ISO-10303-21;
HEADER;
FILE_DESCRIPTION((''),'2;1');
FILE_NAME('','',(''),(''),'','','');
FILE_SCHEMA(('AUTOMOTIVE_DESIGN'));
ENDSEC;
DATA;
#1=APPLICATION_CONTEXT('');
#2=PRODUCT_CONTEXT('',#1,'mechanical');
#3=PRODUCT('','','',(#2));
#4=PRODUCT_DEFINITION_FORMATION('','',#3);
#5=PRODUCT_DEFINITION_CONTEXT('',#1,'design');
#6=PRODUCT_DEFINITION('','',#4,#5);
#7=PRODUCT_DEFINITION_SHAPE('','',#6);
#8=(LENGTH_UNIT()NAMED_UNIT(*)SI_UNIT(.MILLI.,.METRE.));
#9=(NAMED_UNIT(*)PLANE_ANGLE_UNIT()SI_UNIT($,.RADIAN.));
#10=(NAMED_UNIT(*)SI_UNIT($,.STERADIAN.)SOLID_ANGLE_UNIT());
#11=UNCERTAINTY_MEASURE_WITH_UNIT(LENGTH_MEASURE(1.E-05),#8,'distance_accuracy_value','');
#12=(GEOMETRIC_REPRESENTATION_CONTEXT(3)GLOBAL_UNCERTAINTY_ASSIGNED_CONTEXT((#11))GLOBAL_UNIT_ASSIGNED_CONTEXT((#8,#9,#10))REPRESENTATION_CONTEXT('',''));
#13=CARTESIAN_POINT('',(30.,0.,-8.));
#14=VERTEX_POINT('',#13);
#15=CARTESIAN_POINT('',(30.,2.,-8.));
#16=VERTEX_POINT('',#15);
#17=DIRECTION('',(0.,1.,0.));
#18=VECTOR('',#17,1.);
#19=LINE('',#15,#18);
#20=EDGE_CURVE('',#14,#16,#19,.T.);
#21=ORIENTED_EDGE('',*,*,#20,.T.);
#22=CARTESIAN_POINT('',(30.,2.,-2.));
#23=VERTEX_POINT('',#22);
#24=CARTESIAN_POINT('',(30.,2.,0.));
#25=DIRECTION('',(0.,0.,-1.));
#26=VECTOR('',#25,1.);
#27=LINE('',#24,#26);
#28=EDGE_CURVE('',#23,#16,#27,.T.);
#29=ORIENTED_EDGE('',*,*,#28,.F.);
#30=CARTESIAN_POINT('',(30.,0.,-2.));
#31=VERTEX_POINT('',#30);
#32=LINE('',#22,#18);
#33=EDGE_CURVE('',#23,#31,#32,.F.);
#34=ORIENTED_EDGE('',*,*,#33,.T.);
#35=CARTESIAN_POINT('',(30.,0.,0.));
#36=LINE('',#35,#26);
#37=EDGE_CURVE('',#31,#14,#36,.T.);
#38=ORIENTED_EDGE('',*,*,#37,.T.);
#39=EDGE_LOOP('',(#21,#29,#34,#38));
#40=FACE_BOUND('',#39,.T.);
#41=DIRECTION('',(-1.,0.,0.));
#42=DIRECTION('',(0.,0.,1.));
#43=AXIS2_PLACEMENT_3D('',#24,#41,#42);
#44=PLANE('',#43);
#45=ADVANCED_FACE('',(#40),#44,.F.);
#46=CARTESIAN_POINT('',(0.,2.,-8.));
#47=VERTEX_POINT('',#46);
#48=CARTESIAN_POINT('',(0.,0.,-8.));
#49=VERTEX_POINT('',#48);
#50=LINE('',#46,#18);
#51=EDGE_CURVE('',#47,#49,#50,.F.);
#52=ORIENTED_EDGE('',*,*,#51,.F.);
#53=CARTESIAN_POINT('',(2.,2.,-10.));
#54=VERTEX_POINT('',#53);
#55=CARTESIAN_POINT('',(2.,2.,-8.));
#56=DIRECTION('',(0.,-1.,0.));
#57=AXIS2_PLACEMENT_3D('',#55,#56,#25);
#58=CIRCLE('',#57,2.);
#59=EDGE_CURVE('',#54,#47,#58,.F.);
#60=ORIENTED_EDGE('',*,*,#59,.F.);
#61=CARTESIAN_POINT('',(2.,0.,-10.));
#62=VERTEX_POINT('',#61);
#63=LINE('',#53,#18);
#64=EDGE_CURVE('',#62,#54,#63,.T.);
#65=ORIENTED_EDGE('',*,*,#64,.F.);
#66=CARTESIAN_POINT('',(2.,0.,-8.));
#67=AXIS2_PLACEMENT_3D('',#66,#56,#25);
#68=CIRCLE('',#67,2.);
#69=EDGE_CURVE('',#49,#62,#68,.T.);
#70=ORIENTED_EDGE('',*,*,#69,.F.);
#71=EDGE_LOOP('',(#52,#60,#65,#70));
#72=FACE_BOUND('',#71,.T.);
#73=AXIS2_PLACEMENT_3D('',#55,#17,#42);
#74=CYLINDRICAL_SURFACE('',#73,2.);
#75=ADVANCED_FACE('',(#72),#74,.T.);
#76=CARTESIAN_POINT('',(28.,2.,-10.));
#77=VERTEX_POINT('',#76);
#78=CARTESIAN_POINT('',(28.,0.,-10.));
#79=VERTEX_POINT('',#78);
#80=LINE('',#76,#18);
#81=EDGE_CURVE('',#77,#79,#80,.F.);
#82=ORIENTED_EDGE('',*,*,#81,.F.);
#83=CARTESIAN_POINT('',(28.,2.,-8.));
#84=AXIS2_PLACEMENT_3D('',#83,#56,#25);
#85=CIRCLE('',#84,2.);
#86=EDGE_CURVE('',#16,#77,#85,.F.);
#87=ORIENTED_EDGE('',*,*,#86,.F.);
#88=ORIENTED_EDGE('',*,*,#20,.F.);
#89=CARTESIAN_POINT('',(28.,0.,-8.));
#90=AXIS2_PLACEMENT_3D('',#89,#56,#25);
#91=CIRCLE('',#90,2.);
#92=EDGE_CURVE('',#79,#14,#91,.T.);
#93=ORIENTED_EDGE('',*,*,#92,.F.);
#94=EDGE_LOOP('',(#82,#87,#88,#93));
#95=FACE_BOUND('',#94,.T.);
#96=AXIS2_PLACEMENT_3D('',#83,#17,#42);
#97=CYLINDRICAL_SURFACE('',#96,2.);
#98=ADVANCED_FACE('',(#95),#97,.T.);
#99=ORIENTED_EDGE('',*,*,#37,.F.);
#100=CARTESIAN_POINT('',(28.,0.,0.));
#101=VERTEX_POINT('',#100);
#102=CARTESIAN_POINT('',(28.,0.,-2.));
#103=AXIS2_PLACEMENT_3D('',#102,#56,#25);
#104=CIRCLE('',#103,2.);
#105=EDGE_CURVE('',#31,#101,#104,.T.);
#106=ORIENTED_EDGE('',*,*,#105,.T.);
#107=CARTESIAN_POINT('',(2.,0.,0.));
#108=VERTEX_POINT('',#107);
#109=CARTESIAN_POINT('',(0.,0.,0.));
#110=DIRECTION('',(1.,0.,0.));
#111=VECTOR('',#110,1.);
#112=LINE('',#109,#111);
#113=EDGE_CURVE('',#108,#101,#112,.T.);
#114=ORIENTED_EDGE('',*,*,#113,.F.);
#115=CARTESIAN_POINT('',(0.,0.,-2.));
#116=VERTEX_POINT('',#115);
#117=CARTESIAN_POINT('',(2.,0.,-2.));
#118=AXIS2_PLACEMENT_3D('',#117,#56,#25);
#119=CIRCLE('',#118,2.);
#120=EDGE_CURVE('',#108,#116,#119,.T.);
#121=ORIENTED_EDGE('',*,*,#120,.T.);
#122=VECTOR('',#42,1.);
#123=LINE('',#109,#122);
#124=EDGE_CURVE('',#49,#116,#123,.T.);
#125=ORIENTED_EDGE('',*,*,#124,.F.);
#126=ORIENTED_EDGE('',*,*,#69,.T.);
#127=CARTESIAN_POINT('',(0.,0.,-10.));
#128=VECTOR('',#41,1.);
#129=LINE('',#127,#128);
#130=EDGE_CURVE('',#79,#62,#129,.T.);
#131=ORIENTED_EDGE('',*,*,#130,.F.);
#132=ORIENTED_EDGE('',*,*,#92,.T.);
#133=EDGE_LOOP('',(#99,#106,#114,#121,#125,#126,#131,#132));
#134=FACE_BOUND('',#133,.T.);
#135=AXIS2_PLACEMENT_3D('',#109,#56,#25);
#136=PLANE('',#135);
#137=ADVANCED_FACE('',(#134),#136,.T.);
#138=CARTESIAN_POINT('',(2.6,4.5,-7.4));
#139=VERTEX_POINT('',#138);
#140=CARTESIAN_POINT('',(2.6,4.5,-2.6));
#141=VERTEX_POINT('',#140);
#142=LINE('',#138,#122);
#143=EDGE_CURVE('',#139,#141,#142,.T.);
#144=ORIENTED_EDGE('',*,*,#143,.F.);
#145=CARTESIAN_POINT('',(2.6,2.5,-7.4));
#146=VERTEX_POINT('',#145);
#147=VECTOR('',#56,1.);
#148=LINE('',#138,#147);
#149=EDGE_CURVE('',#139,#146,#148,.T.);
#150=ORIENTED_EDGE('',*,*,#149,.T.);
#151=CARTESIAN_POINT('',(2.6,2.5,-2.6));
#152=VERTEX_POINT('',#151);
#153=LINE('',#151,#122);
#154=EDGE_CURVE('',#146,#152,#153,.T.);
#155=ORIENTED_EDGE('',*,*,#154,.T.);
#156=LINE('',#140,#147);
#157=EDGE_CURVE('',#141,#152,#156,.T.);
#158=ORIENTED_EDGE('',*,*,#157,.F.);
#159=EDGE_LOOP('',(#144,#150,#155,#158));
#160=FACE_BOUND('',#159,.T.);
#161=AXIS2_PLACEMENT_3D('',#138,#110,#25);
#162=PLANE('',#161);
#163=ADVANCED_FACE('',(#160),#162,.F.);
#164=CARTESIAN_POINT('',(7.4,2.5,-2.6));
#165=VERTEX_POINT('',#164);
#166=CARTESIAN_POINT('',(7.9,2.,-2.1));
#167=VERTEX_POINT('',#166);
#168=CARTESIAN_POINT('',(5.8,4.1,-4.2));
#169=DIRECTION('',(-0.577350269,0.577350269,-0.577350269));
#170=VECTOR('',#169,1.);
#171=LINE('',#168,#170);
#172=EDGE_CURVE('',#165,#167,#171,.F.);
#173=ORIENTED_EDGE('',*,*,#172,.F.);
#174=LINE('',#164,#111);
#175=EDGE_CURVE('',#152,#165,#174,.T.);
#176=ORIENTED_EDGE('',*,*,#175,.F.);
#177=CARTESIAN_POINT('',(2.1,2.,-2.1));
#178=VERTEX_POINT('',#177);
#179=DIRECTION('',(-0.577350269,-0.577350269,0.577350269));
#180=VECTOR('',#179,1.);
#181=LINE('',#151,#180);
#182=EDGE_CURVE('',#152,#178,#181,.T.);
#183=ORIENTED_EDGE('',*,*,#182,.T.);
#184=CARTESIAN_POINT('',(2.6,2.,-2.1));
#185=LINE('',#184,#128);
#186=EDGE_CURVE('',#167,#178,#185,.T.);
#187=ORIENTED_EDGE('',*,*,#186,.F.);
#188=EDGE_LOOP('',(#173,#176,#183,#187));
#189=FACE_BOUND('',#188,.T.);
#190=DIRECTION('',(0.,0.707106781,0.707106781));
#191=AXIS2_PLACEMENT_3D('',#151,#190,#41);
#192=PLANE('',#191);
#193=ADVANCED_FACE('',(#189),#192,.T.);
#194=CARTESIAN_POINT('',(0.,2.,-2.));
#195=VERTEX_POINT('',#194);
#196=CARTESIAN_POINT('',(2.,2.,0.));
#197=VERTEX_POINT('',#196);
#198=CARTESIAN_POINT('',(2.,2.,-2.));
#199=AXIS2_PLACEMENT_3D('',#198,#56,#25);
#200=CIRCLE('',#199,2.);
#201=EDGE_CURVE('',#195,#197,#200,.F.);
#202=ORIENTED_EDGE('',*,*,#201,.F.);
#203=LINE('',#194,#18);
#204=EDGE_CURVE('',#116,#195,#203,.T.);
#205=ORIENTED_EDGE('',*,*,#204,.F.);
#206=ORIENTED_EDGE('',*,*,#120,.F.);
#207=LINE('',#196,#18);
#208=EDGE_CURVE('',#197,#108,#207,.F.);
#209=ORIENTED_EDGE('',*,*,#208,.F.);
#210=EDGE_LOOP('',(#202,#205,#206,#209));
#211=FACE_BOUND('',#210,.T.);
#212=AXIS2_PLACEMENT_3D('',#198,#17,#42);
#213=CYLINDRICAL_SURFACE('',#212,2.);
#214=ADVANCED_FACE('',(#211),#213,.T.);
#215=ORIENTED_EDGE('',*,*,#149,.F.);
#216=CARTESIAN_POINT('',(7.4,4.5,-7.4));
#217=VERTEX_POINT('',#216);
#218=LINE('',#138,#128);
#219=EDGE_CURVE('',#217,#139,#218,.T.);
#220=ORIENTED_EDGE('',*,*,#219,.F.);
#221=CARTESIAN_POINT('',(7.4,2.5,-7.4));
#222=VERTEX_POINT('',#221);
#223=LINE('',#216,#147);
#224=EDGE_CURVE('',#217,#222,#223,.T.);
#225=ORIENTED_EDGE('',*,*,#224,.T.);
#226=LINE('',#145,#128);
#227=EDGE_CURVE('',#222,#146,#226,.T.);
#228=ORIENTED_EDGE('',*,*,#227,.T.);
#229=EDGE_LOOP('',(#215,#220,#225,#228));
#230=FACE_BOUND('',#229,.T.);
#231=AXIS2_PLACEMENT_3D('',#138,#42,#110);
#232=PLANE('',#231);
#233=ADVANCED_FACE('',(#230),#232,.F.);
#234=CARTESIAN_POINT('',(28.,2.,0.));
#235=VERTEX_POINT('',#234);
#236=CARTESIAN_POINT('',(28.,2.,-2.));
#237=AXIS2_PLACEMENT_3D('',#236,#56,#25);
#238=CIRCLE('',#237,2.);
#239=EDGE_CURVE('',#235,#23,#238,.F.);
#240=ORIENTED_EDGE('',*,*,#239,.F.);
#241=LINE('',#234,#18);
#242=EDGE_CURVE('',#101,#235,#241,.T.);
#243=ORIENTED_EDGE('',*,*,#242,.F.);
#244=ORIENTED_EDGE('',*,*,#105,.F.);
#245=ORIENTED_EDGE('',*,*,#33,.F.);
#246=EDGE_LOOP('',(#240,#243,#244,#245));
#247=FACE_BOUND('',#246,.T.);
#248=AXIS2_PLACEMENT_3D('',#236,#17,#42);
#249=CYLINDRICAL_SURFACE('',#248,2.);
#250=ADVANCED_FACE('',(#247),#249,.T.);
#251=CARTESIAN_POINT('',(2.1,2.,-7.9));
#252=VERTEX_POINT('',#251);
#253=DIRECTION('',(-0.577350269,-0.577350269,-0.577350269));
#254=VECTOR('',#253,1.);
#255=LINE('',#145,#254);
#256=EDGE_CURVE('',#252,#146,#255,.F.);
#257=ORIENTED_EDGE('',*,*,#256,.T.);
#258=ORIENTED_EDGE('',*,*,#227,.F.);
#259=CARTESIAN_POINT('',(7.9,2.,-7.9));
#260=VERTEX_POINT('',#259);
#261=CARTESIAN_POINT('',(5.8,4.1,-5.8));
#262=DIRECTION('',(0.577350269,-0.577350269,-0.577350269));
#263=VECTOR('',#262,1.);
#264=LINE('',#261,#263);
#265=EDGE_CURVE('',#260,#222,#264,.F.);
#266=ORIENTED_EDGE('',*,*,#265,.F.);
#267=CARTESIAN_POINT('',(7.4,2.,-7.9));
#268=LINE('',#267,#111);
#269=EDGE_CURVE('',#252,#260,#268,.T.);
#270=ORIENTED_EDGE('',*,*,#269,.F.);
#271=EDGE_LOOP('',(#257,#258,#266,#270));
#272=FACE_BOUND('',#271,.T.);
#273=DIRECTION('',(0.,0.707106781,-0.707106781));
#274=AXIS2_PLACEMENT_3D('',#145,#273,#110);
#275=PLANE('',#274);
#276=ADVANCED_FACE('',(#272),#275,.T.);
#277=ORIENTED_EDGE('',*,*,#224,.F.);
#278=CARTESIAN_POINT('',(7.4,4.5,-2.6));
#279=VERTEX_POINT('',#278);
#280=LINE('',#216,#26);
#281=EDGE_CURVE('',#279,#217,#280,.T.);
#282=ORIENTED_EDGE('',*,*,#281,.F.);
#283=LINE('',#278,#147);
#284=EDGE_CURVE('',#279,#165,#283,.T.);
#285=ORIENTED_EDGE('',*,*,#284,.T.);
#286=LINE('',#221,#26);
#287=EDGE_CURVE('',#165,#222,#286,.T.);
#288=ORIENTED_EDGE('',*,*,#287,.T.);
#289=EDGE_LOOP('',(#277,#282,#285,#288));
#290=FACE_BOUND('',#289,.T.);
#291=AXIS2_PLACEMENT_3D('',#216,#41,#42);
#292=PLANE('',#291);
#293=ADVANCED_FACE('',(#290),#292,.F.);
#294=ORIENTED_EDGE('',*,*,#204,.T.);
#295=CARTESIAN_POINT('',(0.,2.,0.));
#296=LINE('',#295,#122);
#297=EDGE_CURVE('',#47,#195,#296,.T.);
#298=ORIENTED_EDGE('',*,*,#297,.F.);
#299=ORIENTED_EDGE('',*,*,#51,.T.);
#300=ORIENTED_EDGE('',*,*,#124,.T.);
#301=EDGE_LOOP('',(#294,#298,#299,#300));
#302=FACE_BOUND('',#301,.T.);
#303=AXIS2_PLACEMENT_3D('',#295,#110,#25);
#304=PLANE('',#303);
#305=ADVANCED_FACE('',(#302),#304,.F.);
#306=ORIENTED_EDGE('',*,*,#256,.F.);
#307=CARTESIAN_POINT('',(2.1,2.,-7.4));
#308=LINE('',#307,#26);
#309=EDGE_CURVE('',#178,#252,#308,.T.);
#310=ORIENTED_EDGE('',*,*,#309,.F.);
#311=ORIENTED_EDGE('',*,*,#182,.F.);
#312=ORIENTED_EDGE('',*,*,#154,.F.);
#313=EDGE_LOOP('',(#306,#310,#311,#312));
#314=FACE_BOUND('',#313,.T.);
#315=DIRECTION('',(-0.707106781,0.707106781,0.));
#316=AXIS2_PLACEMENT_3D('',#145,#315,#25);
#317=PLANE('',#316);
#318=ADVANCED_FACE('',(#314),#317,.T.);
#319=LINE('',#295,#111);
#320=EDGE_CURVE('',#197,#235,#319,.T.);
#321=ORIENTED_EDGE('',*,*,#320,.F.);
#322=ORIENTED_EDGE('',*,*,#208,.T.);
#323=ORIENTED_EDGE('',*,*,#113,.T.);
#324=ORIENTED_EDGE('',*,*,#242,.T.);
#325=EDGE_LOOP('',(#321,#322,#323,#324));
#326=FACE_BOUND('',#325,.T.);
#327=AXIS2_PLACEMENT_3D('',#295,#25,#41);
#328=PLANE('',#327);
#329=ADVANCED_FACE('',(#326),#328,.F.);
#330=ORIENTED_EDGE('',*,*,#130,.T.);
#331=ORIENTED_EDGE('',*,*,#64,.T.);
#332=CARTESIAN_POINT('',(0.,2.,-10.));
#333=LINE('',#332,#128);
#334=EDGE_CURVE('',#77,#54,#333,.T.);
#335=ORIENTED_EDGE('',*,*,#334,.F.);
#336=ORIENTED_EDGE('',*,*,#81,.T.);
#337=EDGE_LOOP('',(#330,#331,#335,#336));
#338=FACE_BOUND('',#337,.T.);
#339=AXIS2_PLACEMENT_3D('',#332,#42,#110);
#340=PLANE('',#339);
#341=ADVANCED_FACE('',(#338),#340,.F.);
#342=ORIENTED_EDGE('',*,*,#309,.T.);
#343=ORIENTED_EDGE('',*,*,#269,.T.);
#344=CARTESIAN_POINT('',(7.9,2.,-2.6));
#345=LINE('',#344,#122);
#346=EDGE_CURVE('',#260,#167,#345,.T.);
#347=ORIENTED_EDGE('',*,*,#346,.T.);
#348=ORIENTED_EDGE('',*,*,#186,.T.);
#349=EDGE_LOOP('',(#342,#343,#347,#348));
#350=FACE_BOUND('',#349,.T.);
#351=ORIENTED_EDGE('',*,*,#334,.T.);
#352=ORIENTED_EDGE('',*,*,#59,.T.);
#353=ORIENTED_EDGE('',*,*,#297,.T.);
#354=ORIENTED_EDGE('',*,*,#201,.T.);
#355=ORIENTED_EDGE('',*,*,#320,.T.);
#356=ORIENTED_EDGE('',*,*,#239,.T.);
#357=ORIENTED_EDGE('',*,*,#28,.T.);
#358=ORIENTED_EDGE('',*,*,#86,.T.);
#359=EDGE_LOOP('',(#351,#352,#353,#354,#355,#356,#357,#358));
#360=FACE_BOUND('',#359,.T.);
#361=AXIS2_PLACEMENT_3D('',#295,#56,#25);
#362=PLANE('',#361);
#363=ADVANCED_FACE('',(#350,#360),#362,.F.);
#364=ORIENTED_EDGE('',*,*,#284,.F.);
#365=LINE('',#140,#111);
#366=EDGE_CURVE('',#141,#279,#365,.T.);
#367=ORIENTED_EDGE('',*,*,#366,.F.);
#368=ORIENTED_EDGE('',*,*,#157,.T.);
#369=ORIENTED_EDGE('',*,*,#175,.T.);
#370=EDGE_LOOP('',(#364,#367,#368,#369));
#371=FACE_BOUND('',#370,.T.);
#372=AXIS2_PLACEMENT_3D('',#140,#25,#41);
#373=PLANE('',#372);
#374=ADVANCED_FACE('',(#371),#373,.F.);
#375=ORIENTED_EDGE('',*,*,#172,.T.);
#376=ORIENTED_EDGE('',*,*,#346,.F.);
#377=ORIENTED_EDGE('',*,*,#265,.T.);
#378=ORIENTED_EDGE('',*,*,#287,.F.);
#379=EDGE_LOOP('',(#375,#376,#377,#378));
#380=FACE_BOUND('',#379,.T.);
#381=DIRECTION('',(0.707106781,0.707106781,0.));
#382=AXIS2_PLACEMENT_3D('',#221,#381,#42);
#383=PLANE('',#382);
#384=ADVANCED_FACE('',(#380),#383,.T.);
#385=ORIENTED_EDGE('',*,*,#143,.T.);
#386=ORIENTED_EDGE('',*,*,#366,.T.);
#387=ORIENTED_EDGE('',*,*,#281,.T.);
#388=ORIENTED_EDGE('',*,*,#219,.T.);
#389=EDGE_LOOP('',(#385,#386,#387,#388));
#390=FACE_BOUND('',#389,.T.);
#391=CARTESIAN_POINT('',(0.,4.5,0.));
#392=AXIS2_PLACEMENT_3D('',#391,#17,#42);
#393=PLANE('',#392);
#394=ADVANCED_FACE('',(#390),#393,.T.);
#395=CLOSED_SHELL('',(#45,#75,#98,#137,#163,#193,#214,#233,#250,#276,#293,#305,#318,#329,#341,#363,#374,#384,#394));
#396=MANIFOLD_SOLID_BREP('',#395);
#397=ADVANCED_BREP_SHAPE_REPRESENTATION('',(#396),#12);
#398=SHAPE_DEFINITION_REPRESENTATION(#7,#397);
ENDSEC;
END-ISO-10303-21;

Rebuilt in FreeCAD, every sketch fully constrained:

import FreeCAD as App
import Part
import Sketcher

V = App.Vector


def edges_at(feature, points):
    """Names of the edges that pass closest to the given points."""
    edges = feature.Shape.Edges
    near = lambda p: min(range(len(edges)), key=lambda i: edges[i].distToShape(Part.Vertex(*p))[0])
    return sorted({f"Edge{near(p) + 1}" for p in points})

doc = App.newDocument("Part")
body = doc.addObject("PartDesign::Body", "Body")

# Sketch on XZ plane
sketch1 = body.newObject("Sketcher::SketchObject", "Sketch")
sketch1.AttachmentSupport = (doc.getObject("XZ_Plane"), [""])
sketch1.MapMode = "FlatFace"
sketch1.addGeometry(Part.LineSegment(V(0, -10, 0), V(0, 0, 0)), False)
sketch1.addGeometry(Part.LineSegment(V(0, 0, 0), V(30, 0, 0)), False)
sketch1.addGeometry(Part.LineSegment(V(30, 0, 0), V(30, -10, 0)), False)
sketch1.addGeometry(Part.LineSegment(V(30, -10, 0), V(0, -10, 0)), False)
sketch1.addConstraint(Sketcher.Constraint("Coincident", 0, 2, 1, 1))
sketch1.addConstraint(Sketcher.Constraint("Coincident", 1, 2, 2, 1))
sketch1.addConstraint(Sketcher.Constraint("Coincident", 2, 2, 3, 1))
sketch1.addConstraint(Sketcher.Constraint("Coincident", 3, 2, 0, 1))
sketch1.addConstraint(Sketcher.Constraint("Vertical", 0))
sketch1.addConstraint(Sketcher.Constraint("Horizontal", 1))
sketch1.addConstraint(Sketcher.Constraint("Vertical", 2))
sketch1.addConstraint(Sketcher.Constraint("Horizontal", 3))
sketch1.addConstraint(Sketcher.Constraint("Coincident", 0, 2, -1, 1))
sketch1.addConstraint(Sketcher.Constraint("DistanceX", 1, 1, 1, 2, 30.0))
sketch1.addConstraint(Sketcher.Constraint("DistanceY", 0, 1, 0, 2, 10.0))
pad1 = body.newObject("PartDesign::Pad", "Pad")
pad1.Profile = sketch1
pad1.Length = 2
pad1.Reversed = True

# Sketch on XZ plane
sketch2 = body.newObject("Sketcher::SketchObject", "Sketch001")
sketch2.AttachmentSupport = (doc.getObject("XZ_Plane"), [""])
sketch2.MapMode = "FlatFace"
sketch2.AttachmentOffset = App.Placement(V(0, 0, -2), App.Rotation())
sketch2.addGeometry(Part.LineSegment(V(2.6, -7.4, 0), V(2.6, -2.6, 0)), False)
sketch2.addGeometry(Part.LineSegment(V(2.6, -2.6, 0), V(7.4, -2.6, 0)), False)
sketch2.addGeometry(Part.LineSegment(V(7.4, -2.6, 0), V(7.4, -7.4, 0)), False)
sketch2.addGeometry(Part.LineSegment(V(7.4, -7.4, 0), V(2.6, -7.4, 0)), False)
sketch2.addConstraint(Sketcher.Constraint("Coincident", 0, 2, 1, 1))
sketch2.addConstraint(Sketcher.Constraint("Coincident", 1, 2, 2, 1))
sketch2.addConstraint(Sketcher.Constraint("Coincident", 2, 2, 3, 1))
sketch2.addConstraint(Sketcher.Constraint("Coincident", 3, 2, 0, 1))
sketch2.addConstraint(Sketcher.Constraint("Vertical", 0))
sketch2.addConstraint(Sketcher.Constraint("Horizontal", 1))
sketch2.addConstraint(Sketcher.Constraint("Vertical", 2))
sketch2.addConstraint(Sketcher.Constraint("Horizontal", 3))
sketch2.addConstraint(Sketcher.Constraint("Equal", 3, 0))
sketch2.addConstraint(Sketcher.Constraint("DistanceX", 1, 1, 1, 2, 4.8))
sketch2.addConstraint(Sketcher.Constraint("DistanceX", -1, 1, 0, 2, 2.6))
sketch2.addConstraint(Sketcher.Constraint("DistanceY", 0, 2, -1, 1, 2.6))
pad2 = body.newObject("PartDesign::Pad", "Pad001")
pad2.Profile = sketch2
pad2.Length = 2.5
pad2.Reversed = True
doc.recompute()

chamfer = body.newObject("PartDesign::Chamfer", "Chamfer")
chamfer.Base = (pad2, edges_at(pad2, [
    (7.4, 2, -5),
    (5, 2, -7.4),
    (2.6, 2, -5),
    (5, 2, -2.6),
]))
chamfer.Size = 0.5
doc.recompute()

fillet = body.newObject("PartDesign::Fillet", "Fillet")
fillet.Base = (chamfer, edges_at(chamfer, [(0, 1, 0)]))
fillet.Radius = 2
doc.recompute()

fillet2 = body.newObject("PartDesign::Fillet", "Fillet001")
fillet2.Base = (fillet, edges_at(fillet, [(0, 1, -10)]))
fillet2.Radius = 2
doc.recompute()

fillet3 = body.newObject("PartDesign::Fillet", "Fillet002")
fillet3.Base = (fillet2, edges_at(fillet2, [(30, 1, -10)]))
fillet3.Radius = 2
doc.recompute()

fillet4 = body.newObject("PartDesign::Fillet", "Fillet003")
fillet4.Base = (fillet3, edges_at(fillet3, [(30, 1, 0)]))
fillet4.Radius = 2

doc.recompute()
